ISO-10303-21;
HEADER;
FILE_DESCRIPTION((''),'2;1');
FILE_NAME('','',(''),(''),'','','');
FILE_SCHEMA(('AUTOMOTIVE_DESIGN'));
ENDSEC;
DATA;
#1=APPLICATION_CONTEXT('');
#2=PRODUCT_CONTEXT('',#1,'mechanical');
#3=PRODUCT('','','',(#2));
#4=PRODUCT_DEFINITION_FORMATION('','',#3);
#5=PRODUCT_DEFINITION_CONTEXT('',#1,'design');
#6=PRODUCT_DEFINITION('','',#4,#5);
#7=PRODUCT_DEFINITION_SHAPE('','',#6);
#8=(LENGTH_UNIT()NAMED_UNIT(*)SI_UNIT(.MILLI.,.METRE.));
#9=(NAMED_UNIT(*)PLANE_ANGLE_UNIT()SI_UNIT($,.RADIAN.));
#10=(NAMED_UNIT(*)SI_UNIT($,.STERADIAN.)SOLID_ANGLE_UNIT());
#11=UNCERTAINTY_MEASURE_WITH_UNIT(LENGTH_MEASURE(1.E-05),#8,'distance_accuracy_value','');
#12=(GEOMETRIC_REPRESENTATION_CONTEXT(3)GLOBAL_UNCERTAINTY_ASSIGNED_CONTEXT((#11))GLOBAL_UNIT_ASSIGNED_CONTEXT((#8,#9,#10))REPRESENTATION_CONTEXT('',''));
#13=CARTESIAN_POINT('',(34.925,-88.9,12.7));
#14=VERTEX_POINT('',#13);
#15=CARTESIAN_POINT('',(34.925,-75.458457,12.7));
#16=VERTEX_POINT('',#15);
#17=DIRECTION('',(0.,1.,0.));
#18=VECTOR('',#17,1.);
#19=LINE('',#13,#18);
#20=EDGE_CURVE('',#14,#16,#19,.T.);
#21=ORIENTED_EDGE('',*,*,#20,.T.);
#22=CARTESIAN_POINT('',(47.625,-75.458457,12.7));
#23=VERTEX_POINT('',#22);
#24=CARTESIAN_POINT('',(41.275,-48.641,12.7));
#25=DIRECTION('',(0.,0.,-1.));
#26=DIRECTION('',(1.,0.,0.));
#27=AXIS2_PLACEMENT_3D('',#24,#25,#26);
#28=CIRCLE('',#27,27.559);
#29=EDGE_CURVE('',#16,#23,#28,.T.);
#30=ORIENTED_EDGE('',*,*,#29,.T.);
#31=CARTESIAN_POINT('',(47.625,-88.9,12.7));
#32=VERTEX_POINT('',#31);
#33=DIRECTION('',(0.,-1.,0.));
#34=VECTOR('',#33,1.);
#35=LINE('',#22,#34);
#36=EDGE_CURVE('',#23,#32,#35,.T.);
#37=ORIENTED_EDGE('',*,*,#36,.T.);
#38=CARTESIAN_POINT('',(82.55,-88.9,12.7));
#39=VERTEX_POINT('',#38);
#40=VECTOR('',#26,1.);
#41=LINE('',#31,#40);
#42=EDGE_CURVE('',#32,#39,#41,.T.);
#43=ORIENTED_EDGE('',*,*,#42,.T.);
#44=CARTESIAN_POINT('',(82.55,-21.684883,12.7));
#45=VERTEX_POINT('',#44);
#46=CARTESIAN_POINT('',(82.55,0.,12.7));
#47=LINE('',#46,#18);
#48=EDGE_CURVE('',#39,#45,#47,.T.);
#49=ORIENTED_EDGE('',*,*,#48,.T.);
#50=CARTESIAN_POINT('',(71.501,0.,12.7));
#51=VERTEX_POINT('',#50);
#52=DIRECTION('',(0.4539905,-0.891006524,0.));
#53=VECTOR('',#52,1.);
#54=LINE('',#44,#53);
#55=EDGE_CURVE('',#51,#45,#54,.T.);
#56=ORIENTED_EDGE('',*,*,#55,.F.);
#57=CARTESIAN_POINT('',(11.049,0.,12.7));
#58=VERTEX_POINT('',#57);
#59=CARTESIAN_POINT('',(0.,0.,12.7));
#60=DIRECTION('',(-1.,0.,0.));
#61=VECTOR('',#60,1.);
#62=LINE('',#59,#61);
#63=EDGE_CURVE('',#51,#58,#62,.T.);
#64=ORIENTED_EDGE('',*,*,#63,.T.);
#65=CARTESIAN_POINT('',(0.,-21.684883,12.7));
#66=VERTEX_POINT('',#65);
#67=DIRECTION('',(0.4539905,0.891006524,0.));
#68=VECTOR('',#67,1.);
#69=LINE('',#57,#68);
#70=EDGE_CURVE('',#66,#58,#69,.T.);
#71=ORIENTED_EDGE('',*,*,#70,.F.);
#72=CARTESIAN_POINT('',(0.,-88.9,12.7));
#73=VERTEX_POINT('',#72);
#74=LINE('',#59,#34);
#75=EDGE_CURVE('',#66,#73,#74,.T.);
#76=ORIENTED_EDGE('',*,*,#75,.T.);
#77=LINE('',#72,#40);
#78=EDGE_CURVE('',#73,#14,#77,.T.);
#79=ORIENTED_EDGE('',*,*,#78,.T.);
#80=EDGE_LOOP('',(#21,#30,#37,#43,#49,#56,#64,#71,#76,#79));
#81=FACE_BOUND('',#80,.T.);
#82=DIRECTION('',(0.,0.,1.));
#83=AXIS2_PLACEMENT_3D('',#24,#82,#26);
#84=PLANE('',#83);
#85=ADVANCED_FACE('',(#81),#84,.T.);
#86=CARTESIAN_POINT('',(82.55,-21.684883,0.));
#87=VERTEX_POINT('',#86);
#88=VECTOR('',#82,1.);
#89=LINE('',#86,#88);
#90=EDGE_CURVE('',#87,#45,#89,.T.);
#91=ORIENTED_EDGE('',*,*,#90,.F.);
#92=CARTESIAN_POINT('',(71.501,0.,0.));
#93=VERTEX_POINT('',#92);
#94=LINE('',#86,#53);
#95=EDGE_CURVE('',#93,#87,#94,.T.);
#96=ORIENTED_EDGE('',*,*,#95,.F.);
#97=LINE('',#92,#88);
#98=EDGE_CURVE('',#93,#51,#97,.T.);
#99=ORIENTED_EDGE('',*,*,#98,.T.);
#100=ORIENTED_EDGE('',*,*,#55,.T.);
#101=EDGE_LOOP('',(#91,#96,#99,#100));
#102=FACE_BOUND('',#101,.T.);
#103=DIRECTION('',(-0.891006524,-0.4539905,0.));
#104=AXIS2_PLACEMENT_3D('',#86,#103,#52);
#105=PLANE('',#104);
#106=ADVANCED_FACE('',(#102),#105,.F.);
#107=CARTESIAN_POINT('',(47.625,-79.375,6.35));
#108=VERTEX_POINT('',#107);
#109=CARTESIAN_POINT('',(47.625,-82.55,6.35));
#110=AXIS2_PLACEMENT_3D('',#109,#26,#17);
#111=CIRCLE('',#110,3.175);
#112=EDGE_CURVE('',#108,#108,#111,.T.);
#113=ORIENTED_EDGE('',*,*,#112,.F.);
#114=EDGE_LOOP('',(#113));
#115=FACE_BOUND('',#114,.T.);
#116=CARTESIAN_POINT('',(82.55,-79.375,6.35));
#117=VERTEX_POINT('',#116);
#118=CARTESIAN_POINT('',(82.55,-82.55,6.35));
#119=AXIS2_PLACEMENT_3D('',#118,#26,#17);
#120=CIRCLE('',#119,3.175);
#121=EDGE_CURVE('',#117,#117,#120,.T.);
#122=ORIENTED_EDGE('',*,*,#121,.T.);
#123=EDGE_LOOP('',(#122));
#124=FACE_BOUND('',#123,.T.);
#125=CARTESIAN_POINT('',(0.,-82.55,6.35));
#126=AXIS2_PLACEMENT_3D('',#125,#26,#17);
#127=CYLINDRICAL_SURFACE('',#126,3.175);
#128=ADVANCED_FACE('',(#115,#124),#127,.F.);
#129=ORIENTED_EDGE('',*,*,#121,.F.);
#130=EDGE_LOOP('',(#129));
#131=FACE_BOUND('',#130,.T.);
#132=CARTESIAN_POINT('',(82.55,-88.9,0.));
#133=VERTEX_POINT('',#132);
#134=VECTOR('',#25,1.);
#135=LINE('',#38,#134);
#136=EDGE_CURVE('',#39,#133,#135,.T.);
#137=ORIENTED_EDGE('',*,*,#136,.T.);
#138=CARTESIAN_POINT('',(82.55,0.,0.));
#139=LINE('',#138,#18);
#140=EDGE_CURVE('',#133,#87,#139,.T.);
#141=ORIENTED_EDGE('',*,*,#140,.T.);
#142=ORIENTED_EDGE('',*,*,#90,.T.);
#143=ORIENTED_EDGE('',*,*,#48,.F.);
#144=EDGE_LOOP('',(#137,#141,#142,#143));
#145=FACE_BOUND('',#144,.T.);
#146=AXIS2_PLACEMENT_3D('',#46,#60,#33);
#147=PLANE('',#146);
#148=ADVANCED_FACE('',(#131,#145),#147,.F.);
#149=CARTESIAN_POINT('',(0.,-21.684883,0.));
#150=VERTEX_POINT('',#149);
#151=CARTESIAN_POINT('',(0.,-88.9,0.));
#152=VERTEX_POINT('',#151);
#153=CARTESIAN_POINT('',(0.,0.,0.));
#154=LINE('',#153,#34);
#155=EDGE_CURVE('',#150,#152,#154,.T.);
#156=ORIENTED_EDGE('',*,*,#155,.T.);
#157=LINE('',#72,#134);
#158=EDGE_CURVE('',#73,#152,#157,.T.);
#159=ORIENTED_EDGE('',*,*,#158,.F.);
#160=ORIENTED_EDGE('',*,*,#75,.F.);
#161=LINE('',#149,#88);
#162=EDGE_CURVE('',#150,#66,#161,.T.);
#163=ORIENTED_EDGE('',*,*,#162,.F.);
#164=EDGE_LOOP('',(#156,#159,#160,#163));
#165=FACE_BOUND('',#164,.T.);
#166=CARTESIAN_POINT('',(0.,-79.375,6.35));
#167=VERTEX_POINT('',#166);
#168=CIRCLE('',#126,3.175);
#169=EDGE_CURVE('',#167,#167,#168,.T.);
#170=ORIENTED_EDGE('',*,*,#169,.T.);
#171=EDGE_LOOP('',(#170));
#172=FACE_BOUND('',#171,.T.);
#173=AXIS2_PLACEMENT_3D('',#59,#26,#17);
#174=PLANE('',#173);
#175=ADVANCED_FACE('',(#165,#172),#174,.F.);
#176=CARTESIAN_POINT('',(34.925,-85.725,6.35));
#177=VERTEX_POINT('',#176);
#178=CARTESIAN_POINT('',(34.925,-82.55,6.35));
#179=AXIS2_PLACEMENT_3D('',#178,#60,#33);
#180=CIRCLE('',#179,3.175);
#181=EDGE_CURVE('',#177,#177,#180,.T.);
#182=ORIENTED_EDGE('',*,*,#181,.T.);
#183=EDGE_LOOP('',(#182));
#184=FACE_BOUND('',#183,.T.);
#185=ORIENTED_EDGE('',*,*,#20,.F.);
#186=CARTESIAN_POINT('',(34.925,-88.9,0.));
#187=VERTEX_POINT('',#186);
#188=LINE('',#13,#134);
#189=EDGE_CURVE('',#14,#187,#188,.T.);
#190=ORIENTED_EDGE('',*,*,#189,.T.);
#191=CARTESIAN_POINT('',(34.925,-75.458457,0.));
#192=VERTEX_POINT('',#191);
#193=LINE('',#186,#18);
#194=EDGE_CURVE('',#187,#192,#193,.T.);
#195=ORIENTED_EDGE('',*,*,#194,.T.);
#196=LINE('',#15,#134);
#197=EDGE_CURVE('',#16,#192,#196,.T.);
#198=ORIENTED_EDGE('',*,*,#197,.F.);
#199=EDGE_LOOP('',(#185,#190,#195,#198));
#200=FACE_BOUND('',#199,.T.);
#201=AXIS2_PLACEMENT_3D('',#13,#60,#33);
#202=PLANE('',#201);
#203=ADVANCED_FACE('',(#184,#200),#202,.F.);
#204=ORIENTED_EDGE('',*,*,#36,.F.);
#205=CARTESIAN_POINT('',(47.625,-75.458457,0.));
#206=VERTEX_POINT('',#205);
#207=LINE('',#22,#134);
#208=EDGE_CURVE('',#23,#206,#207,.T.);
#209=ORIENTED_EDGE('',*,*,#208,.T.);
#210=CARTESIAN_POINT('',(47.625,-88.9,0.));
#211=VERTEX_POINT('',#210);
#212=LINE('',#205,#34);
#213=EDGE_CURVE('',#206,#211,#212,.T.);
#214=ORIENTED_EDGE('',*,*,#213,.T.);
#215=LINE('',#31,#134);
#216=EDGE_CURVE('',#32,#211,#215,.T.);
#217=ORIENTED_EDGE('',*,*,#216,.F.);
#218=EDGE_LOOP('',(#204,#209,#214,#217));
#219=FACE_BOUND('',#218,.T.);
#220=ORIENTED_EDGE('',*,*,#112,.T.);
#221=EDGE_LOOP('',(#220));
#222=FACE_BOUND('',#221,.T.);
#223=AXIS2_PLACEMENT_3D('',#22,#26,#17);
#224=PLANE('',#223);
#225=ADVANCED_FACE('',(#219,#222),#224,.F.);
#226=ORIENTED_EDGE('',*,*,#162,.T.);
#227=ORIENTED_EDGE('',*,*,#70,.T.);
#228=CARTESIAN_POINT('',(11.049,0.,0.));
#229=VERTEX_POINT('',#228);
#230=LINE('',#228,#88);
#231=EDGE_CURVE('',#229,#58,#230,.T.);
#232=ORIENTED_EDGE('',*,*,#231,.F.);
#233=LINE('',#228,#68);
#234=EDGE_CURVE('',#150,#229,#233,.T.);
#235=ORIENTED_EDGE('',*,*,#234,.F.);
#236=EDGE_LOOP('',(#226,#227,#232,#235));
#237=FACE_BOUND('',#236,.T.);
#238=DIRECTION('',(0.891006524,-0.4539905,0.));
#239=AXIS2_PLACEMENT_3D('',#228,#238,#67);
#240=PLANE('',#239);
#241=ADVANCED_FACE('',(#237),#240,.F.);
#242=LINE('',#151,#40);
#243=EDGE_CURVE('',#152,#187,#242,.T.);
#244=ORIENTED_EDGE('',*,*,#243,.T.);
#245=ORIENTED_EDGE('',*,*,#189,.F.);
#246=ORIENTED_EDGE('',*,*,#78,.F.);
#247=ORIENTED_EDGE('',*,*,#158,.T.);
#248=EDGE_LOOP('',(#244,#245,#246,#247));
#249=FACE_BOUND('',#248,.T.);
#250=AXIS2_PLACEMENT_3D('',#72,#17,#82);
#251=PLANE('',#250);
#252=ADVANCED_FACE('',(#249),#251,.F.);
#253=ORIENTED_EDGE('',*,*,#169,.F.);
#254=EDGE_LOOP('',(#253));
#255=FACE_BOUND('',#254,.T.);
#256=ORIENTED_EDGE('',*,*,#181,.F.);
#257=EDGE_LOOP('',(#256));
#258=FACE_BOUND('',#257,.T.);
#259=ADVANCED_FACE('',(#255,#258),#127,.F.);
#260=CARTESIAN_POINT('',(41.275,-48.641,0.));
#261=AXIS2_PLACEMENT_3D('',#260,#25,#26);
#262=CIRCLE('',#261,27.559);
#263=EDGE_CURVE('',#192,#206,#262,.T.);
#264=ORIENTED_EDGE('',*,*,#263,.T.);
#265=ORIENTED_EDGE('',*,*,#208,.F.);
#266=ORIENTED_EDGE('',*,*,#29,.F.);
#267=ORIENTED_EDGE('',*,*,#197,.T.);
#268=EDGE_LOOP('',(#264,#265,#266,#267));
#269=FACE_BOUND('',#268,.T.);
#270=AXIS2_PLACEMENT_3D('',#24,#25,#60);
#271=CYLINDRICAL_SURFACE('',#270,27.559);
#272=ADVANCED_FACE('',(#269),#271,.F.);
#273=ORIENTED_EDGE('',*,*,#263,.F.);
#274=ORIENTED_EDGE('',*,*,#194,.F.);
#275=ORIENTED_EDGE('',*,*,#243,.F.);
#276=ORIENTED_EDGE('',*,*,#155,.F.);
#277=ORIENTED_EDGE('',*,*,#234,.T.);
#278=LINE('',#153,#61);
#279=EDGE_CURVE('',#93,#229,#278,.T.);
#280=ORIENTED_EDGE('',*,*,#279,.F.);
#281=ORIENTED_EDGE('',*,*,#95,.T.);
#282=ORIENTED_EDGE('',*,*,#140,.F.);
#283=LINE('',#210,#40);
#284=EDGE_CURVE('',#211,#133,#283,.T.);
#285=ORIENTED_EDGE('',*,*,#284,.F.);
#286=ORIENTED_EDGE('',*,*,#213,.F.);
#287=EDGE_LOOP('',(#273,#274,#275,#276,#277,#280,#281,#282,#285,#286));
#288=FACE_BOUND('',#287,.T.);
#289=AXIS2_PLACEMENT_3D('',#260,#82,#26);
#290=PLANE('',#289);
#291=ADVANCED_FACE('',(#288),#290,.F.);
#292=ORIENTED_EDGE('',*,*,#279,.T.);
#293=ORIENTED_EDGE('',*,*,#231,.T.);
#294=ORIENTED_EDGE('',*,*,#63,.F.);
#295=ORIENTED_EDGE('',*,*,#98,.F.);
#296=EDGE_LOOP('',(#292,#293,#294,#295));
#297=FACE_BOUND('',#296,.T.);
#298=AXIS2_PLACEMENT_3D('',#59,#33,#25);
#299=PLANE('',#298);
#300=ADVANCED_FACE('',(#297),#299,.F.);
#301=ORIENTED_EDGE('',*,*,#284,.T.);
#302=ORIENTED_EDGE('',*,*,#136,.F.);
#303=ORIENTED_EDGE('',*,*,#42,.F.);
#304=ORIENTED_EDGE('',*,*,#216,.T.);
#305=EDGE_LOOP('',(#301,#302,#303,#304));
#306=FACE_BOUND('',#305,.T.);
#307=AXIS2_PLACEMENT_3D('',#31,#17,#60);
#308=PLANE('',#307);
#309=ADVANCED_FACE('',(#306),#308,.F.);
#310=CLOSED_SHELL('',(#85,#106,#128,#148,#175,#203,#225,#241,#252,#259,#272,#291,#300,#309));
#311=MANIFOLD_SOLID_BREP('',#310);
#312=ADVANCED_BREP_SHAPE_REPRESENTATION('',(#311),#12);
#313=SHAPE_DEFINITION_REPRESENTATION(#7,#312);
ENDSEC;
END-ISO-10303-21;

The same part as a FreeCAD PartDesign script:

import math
import FreeCAD as App
import Part
import Sketcher

V = App.Vector
Q = App.Units.Quantity

doc = App.newDocument("Part")
body = doc.addObject("PartDesign::Body", "Body")

# Sketch on XY plane
sketch1 = body.newObject("Sketcher::SketchObject", "Sketch")
sketch1.AttachmentSupport = (doc.getObject("XY_Plane"), [""])
sketch1.MapMode = "FlatFace"
sketch1.addGeometry([
    Part.LineSegment(V(35, -89, 0), V(35, -75, 0)),  # 0
    Part.ArcOfCircle(Part.Circle(V(41, -49, 0), V(0, 0, 1), 28), math.radians(-77), math.radians(257)),  # 1
    Part.LineSegment(V(48, -75, 0), V(48, -89, 0)),  # 2
    Part.LineSegment(V(48, -89, 0), V(83, -89, 0)),  # 3
    Part.LineSegment(V(83, -89, 0), V(83, 0, 0)),  # 4
    Part.LineSegment(V(83, 0, 0), V(0, 0, 0)),  # 5
    Part.LineSegment(V(0, 0, 0), V(0, -89, 0)),  # 6
    Part.LineSegment(V(0, -89, 0), V(35, -89, 0)),  # 7
], False)
sketch1.addConstraint([
    Sketcher.Constraint("Coincident", 0, 2, 1, 2),
    Sketcher.Constraint("Coincident", 1, 1, 2, 1),
    Sketcher.Constraint("Coincident", 2, 2, 3, 1),
    Sketcher.Constraint("Coincident", 3, 2, 4, 1),
    Sketcher.Constraint("Coincident", 4, 2, 5, 1),
    Sketcher.Constraint("Coincident", 5, 2, 6, 1),
    Sketcher.Constraint("Coincident", 6, 2, 7, 1),
    Sketcher.Constraint("Coincident", 7, 2, 0, 1),
    Sketcher.Constraint("Vertical", 0),
    Sketcher.Constraint("Vertical", 2),
    Sketcher.Constraint("Horizontal", 3),
    Sketcher.Constraint("Vertical", 4),
    Sketcher.Constraint("Horizontal", 5),
    Sketcher.Constraint("Vertical", 6),
    Sketcher.Constraint("Horizontal", 7),
    Sketcher.Constraint("Coincident", 5, 2, -1, 1),
    Sketcher.Constraint("Horizontal", 0, 2, 1, 1),
    Sketcher.Constraint("Horizontal", 3, 2, 6, 2),
    Sketcher.Constraint("Equal", 3, 7),
    Sketcher.Constraint("DistanceY", 4, 1, 4, 2, Q("3.5 in")),
    Sketcher.Constraint("Radius", 1, Q("1.085 in")),
    Sketcher.Constraint("DistanceX", 5, 2, 5, 1, Q("3.25 in")),
    Sketcher.Constraint("DistanceX", 0, 2, 1, 1, Q("0.5 in")),
    Sketcher.Constraint("DistanceY", 1, 3, -1, 1, Q("1.915 in")),
])
pad1 = body.newObject("PartDesign::Pad", "Pad")
pad1.Profile = sketch1
pad1.Length = Q("0.5 in")

# Sketch on YZ plane
sketch2 = body.newObject("Sketcher::SketchObject", "Sketch001")
sketch2.AttachmentSupport = (doc.getObject("YZ_Plane"), [""])
sketch2.MapMode = "FlatFace"
sketch2.AttachmentOffset = App.Placement(V(0, 0, 3.25 * 25.4), App.Rotation())
sketch2.addGeometry(Part.Circle(V(-82.5, 6.3, 0), V(0, 0, 1), 3.2), False)
sketch2.addConstraint([
    Sketcher.Constraint("Diameter", 0, Q("0.25 in")),
    Sketcher.Constraint("DistanceX", 0, 3, -1, 1, Q("3.25 in")),
    Sketcher.Constraint("DistanceY", -1, 1, 0, 3, Q("0.25 in")),
])
pocket1 = body.newObject("PartDesign::Pocket", "Pocket")
pocket1.Profile = sketch2
pocket1.Type = "ThroughAll"

# Sketch on XY plane
sketch3 = body.newObject("Sketcher::SketchObject", "Sketch002")
sketch3.AttachmentSupport = (doc.getObject("XY_Plane"), [""])
sketch3.MapMode = "FlatFace"
sketch3.AttachmentOffset = App.Placement(V(0, 0, 0.5 * 25.4), App.Rotation())
sketch3.addGeometry([
    Part.LineSegment(V(0, -22, 0), V(11, 0, 0)),  # 0
    Part.LineSegment(V(11, 0, 0), V(0, 0, 0)),  # 1
    Part.LineSegment(V(0, 0, 0), V(0, -22, 0)),  # 2
    Part.LineSegment(V(83, 0, 0), V(72, 0, 0)),  # 3
    Part.LineSegment(V(72, 0, 0), V(83, -22, 0)),  # 4
    Part.LineSegment(V(83, -22, 0), V(83, 0, 0)),  # 5
], False)
sketch3.addConstraint([
    Sketcher.Constraint("Coincident", 0, 2, 1, 1),
    Sketcher.Constraint("Coincident", 1, 2, 2, 1),
    Sketcher.Constraint("Coincident", 2, 2, 0, 1),
    Sketcher.Constraint("Coincident", 3, 2, 4, 1),
    Sketcher.Constraint("Coincident", 4, 2, 5, 1),
    Sketcher.Constraint("Coincident", 5, 2, 3, 1),
    Sketcher.Constraint("Horizontal", 1),
    Sketcher.Constraint("Vertical", 2),
    Sketcher.Constraint("Horizontal", 3),
    Sketcher.Constraint("Vertical", 5),
    Sketcher.Constraint("Coincident", 1, 2, -1, 1),
    Sketcher.Constraint("PointOnObject", 3, 2, -1),
    Sketcher.Constraint("Horizontal", 2, 2, 4, 2),
    Sketcher.Constraint("Equal", 1, 3),
    Sketcher.Constraint("Angle", 0, Q("63 deg")),
    Sketcher.Constraint("DistanceX", 1, 2, 1, 1, Q("0.435 in")),
    Sketcher.Constraint("DistanceX", -1, 1, 4, 2, Q("3.25 in")),
])
pocket2 = body.newObject("PartDesign::Pocket", "Pocket001")
pocket2.Profile = sketch3
pocket2.Type = "ThroughAll"

doc.recompute()
